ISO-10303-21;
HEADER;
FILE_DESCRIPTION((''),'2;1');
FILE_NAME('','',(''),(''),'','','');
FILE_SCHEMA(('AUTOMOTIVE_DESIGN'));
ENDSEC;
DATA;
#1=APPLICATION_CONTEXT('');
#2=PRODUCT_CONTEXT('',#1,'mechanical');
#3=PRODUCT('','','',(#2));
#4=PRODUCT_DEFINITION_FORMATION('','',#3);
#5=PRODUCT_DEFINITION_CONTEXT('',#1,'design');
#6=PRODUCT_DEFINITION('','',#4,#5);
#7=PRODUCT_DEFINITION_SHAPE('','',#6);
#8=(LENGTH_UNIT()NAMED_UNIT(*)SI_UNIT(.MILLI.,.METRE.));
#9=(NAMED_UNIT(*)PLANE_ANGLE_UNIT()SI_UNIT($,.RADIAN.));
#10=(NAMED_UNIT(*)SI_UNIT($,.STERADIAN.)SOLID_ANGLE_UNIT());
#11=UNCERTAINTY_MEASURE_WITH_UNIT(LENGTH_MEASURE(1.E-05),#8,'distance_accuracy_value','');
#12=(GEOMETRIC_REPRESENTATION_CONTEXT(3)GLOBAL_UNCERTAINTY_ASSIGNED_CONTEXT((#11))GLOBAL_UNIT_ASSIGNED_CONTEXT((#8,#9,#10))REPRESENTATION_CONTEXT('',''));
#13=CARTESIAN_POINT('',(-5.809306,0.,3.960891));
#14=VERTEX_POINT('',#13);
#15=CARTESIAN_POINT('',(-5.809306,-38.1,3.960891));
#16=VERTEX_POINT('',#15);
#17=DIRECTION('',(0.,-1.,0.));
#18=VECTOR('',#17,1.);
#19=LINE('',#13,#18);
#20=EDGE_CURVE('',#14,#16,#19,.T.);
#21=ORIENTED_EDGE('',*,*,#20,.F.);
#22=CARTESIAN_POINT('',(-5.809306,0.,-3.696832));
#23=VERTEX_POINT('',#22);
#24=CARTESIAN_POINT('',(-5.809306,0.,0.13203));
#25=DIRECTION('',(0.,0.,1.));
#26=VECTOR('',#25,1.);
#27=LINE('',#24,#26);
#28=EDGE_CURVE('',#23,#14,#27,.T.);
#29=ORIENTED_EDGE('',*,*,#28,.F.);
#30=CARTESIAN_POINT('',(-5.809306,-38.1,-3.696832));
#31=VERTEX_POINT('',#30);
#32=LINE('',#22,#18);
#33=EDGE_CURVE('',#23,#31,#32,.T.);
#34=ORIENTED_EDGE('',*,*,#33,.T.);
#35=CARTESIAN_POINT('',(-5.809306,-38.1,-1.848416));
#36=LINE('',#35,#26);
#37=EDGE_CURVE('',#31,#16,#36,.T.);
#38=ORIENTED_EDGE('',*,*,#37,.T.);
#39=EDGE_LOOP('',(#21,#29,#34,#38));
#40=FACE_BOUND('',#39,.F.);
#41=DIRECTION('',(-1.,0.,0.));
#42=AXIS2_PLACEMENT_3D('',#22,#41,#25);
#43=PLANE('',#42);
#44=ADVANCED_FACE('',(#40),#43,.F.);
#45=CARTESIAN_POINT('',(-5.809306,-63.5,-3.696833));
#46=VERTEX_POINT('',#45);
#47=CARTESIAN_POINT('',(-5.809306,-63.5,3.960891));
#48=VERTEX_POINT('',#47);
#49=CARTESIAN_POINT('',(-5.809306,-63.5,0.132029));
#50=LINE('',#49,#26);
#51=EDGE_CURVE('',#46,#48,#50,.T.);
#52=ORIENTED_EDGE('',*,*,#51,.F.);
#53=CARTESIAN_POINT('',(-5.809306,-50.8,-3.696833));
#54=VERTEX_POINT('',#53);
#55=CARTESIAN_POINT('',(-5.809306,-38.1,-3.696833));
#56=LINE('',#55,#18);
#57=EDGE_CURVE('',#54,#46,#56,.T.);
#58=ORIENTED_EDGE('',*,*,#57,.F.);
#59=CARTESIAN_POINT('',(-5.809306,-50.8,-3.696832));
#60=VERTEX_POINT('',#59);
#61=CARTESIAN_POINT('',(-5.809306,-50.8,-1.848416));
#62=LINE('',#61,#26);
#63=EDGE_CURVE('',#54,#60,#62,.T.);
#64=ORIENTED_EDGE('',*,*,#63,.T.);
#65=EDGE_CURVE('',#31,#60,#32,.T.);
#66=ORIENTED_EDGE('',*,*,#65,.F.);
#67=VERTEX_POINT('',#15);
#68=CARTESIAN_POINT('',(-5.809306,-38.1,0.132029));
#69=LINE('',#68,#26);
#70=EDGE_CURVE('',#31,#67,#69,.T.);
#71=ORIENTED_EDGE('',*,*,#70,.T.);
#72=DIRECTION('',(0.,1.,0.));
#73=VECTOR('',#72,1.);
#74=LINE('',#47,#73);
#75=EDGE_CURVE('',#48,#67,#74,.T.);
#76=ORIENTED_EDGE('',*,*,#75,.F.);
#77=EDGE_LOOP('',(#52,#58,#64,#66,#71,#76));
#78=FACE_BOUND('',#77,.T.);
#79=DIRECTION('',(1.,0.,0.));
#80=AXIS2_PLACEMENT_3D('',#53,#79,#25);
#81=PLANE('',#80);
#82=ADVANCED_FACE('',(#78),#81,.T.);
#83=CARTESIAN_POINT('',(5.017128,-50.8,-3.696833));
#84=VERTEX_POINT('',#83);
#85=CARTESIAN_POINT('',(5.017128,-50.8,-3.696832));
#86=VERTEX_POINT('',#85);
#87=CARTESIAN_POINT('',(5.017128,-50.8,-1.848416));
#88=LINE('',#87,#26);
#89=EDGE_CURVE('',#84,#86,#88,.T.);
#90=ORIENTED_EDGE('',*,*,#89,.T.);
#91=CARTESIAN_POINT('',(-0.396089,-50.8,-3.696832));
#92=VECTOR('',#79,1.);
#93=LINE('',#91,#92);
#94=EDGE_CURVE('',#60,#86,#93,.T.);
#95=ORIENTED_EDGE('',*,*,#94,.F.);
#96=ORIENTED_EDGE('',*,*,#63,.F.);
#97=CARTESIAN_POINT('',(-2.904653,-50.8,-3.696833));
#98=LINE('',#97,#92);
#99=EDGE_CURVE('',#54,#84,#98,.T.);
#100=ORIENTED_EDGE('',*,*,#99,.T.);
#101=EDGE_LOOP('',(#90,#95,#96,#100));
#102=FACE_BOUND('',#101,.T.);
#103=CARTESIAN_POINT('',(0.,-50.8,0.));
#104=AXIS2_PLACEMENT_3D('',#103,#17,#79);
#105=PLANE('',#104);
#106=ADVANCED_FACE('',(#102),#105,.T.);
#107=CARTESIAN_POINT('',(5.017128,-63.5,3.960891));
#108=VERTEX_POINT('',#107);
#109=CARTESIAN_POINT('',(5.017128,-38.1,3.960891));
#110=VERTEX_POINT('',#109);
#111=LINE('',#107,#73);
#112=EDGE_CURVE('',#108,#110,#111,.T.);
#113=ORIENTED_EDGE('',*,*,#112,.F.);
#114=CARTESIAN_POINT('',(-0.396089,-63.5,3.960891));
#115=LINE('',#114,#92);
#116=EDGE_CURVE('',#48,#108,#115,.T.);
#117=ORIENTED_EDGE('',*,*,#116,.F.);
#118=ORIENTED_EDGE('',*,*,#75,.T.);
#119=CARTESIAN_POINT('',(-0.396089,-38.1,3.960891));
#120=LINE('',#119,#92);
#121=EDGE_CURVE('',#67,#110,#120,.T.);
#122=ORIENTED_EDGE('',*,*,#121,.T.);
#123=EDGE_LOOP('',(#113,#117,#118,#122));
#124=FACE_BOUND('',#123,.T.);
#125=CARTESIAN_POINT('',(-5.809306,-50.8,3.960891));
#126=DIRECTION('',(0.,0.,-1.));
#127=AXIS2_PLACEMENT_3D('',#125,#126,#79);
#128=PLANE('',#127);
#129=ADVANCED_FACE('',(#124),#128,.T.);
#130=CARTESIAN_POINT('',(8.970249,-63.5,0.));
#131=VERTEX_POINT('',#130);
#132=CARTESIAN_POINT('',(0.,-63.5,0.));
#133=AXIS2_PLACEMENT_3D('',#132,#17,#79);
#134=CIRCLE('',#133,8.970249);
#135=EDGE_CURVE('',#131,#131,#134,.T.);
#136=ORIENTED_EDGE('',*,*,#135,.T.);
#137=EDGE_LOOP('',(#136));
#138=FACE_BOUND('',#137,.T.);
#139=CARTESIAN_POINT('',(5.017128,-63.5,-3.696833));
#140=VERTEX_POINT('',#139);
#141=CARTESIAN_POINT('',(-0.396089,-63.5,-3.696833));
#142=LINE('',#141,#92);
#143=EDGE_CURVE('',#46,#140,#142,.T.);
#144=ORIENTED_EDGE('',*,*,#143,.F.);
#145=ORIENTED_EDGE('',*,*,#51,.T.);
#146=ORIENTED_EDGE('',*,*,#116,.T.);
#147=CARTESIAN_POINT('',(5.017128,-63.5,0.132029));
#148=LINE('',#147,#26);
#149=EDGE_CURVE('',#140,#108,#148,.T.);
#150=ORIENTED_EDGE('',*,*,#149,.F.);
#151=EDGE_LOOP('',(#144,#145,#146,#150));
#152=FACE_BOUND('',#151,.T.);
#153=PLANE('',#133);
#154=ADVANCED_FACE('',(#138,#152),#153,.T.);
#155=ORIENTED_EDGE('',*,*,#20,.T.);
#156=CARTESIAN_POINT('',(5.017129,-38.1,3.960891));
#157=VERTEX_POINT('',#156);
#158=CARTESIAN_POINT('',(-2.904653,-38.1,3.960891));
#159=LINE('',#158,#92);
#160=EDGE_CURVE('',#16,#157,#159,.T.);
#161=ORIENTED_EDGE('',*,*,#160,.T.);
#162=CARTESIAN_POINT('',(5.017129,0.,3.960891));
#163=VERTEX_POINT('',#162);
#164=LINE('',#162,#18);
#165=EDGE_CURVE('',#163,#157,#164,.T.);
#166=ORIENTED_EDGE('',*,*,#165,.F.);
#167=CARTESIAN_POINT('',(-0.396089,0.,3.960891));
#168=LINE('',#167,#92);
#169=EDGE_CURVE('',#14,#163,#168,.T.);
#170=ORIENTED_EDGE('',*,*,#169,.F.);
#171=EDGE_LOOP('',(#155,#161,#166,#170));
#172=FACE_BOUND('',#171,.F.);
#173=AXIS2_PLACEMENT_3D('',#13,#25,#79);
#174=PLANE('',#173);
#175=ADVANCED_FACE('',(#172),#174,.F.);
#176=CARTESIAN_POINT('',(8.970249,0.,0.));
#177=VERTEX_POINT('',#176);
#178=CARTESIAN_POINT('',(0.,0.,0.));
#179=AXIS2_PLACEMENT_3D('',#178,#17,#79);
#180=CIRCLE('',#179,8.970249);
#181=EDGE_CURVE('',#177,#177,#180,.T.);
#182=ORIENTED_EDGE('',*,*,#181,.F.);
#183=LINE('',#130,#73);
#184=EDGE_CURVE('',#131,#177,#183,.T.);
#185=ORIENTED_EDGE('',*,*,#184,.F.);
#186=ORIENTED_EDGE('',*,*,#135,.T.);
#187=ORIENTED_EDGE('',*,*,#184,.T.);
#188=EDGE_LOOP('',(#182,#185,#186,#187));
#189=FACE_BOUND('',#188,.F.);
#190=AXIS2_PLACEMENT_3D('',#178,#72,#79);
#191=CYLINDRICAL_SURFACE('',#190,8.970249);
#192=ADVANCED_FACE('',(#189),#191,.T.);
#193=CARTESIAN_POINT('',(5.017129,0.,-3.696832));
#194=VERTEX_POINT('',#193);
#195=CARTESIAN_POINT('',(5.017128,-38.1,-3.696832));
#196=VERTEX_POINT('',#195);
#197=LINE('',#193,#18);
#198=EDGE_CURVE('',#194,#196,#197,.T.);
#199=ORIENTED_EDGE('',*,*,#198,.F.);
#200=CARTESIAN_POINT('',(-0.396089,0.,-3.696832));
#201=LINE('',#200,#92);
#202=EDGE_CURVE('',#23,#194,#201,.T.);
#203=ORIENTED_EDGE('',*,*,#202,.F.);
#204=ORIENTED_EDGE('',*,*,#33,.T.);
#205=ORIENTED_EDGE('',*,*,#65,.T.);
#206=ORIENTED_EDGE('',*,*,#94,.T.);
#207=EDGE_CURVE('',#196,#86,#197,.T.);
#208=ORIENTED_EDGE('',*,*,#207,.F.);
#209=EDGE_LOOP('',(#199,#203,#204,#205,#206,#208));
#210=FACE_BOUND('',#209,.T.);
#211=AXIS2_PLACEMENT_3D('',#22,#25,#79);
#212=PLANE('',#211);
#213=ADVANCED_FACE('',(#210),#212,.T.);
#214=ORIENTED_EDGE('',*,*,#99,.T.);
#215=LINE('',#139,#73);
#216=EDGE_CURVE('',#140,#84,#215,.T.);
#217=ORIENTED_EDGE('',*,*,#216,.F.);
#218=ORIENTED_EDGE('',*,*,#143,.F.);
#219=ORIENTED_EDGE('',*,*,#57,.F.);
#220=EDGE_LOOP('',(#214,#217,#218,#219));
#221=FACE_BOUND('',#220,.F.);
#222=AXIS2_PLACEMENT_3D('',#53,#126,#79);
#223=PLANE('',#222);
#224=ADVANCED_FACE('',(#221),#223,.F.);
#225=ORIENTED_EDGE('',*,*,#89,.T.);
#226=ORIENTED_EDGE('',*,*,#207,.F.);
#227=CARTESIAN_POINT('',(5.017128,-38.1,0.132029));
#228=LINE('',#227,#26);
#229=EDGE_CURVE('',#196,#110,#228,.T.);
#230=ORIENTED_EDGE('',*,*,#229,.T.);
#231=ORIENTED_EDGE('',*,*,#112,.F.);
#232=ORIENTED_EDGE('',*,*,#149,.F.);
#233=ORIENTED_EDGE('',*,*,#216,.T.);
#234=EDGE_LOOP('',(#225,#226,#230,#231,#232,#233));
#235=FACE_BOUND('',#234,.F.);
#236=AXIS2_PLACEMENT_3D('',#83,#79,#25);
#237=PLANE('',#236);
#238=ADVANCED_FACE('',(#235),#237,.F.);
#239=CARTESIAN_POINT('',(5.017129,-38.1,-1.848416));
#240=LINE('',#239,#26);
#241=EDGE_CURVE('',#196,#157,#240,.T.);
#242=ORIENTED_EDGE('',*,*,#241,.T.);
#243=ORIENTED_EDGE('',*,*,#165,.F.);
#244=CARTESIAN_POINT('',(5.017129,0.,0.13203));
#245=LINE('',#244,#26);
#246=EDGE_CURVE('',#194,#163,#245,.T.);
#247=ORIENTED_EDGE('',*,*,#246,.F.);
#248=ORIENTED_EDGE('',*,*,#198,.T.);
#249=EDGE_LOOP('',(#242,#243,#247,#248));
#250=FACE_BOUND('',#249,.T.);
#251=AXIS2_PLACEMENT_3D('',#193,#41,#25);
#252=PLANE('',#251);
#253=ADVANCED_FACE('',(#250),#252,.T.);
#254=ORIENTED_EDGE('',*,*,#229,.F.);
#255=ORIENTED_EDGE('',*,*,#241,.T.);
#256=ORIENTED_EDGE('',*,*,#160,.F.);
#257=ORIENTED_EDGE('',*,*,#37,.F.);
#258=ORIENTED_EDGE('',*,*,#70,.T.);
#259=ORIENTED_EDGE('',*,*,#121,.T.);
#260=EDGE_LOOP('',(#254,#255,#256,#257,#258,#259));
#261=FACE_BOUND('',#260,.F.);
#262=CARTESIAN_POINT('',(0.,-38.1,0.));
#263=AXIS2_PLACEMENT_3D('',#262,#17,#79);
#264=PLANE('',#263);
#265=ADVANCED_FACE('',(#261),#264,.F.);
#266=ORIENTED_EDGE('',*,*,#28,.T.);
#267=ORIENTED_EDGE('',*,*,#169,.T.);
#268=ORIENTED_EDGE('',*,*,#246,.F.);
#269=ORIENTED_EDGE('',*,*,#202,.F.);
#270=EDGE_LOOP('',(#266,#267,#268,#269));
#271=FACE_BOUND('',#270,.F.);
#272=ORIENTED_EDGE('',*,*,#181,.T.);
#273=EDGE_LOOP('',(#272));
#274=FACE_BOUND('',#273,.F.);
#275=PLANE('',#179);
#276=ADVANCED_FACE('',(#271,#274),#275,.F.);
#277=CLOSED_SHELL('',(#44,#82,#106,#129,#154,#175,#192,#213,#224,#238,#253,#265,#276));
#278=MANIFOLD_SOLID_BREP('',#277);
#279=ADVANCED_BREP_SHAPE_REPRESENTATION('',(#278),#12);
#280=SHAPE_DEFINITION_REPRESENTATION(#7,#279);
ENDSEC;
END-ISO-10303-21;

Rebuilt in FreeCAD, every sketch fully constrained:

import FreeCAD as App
import Part
import Sketcher
from FreeCAD import Vector
Q = App.Units.Quantity


def add_polygon(sketch, points):
    """Adds a closed chain of lines whose ends are joined by coincident constraints."""
    first, n = sketch.GeometryCount, len(points)
    for a, b in zip(points, points[1:] + points[:1]):
        sketch.addGeometry(Part.LineSegment(App.Vector(*a, 0), App.Vector(*b, 0)), False)
    for i in range(n):
        sketch.addConstraint(Sketcher.Constraint("Coincident", first + i, 2, first + (i + 1) % n, 1))

doc = App.newDocument("Part")
body = doc.addObject("PartDesign::Body", "Body")

# Sketch on XZ plane
sketch1 = body.newObject("Sketcher::SketchObject", "Sketch")
sketch1.AttachmentSupport = (doc.getObject("XZ_Plane"), [""])
sketch1.MapMode = "FlatFace"
sketch1.addGeometry(Part.Circle(Vector(0, 0, 0), Vector(0, 0, 1), 9), False)  # 0
add_polygon(sketch1, [(5, -4), (-6, -4), (-6, 4), (5, 4)])  # lines 1-4
sketch1.addConstraint([
    Sketcher.Constraint("Horizontal", 1),
    Sketcher.Constraint("Vertical", 2),
    Sketcher.Constraint("Horizontal", 3),
    Sketcher.Constraint("Vertical", 4),
    Sketcher.Constraint("Coincident", 0, 3, -1, 1),
    Sketcher.Constraint("Diameter", 0, 17.940498),
    Sketcher.Constraint("DistanceX", 1, 2, 1, 1, 10.826435),
    Sketcher.Constraint("DistanceY", 2, 1, 2, 2, 7.657723),
    Sketcher.Constraint("DistanceY", 1, 2, -1, 1, 3.696832),
    Sketcher.Constraint("DistanceX", -1, 1, 3, 2, 5.017129),
])
pad1 = body.newObject("PartDesign::Pad", "Pad")
pad1.Profile = sketch1
pad1.Length = Q("2 in")

# Sketch on XZ plane
sketch2 = body.newObject("Sketcher::SketchObject", "Sketch001")
sketch2.AttachmentSupport = (doc.getObject("XZ_Plane"), [""])
sketch2.MapMode = "FlatFace"
sketch2.AttachmentOffset = App.Placement(Vector(0, 0, 2 * 25.4), App.Rotation())
sketch2.addGeometry(Part.Circle(Vector(0, 0, 0), Vector(0, 0, 1), 9), False)  # 0
add_polygon(sketch2, [(5, -4), (-6, -4), (-6, 4), (5, 4)])  # lines 1-4
sketch2.addConstraint([
    Sketcher.Constraint("Horizontal", 1),
    Sketcher.Constraint("Vertical", 2),
    Sketcher.Constraint("Horizontal", 3),
    Sketcher.Constraint("Vertical", 4),
    Sketcher.Constraint("Coincident", 0, 3, -1, 1),
    Sketcher.Constraint("Diameter", 0, 17.940498),
    Sketcher.Constraint("DistanceX", 1, 2, 1, 1, 10.826434),
    Sketcher.Constraint("DistanceY", 2, 1, 2, 2, 7.657723),
    Sketcher.Constraint("DistanceY", -1, 1, 2, 2, 3.960891),
    Sketcher.Constraint("DistanceX", 1, 2, -1, 1, 5.809306),
])
pad2 = body.newObject("PartDesign::Pad", "Pad001")
pad2.Profile = sketch2
pad2.Length = Q("1 in")
pad2.Midplane = True

doc.recompute()
